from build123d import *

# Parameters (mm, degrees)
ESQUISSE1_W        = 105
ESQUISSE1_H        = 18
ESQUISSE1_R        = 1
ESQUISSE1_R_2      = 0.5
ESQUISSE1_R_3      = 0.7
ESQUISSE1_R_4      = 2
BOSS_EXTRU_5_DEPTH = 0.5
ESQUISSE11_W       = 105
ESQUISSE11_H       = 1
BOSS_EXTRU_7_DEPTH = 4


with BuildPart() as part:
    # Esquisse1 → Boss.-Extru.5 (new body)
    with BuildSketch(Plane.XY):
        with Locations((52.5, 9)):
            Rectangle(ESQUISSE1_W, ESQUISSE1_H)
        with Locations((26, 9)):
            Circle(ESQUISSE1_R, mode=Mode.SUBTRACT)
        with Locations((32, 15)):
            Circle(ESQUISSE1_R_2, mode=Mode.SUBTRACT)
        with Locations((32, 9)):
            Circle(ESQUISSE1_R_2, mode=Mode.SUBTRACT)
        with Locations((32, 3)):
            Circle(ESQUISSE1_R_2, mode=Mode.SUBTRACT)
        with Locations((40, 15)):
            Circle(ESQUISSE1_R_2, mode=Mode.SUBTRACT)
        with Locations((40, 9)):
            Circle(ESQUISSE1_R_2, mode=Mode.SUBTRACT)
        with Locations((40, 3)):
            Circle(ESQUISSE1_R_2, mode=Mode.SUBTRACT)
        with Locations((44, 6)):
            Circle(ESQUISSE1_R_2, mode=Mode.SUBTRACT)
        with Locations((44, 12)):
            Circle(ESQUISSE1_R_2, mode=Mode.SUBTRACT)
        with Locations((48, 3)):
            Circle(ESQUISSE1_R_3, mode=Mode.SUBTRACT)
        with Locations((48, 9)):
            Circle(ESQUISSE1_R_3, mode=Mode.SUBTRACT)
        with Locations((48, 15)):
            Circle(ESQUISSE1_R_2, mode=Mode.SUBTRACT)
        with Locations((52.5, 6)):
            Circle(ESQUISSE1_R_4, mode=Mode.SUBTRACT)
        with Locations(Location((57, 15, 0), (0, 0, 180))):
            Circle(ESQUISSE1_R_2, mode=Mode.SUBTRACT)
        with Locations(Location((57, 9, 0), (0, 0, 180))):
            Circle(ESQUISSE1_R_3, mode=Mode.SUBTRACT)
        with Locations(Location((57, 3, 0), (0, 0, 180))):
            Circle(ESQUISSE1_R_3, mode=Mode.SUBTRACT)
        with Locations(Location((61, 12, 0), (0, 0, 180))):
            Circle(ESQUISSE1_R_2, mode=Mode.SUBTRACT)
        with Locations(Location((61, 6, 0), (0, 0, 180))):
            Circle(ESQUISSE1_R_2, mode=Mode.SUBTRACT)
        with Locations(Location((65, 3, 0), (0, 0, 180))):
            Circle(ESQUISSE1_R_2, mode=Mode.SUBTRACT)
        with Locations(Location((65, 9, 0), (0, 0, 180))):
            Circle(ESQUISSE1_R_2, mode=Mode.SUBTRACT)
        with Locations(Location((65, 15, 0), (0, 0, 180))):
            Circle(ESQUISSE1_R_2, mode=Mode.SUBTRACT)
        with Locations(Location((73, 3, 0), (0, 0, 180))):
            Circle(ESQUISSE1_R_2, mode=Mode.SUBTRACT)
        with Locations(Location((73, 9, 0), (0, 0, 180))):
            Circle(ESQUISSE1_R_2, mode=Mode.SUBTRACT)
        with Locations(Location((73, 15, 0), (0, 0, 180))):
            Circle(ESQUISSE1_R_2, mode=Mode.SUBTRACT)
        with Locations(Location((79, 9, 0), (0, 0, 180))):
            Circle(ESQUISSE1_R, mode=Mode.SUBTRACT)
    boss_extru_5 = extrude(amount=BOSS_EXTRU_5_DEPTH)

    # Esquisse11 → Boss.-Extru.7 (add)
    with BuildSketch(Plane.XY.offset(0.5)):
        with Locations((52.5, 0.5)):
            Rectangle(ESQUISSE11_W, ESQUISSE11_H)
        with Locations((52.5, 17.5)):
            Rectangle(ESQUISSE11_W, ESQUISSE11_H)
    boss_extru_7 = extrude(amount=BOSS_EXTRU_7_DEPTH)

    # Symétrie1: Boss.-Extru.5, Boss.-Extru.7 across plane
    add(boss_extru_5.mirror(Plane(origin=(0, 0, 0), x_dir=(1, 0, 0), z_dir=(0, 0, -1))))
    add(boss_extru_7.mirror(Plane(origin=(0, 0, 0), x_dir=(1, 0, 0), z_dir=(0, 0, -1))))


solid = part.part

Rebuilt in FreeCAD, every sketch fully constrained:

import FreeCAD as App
import Part
import Sketcher

doc = App.newDocument("Part")
body = doc.addObject("PartDesign::Body", "Body")

# Sketch on XY plane
sketch1 = body.newObject("Sketcher::SketchObject", "Sketch")
sketch1.AttachmentSupport = (doc.getObject("XY_Plane"), [""])
sketch1.MapMode = "FlatFace"
sketch1.addGeometry([
    Part.LineSegment(App.Vector(0, 18, 0), App.Vector(0, 0, 0)),  # 0
    Part.LineSegment(App.Vector(0, 0, 0), App.Vector(105, 0, 0)),  # 1
    Part.LineSegment(App.Vector(105, 0, 0), App.Vector(105, 18, 0)),  # 2
    Part.LineSegment(App.Vector(105, 18, 0), App.Vector(0, 18, 0)),  # 3
    Part.Circle(App.Vector(32, 3, 0), App.Vector(0, 0, 1), 0.5),  # 4
    Part.Circle(App.Vector(40, 3, 0), App.Vector(0, 0, 1), 0.5),  # 5
    Part.Circle(App.Vector(48, 3, 0), App.Vector(0, 0, 1), 0.7),  # 6
    Part.Circle(App.Vector(44, 6, 0), App.Vector(0, 0, 1), 0.5),  # 7
    Part.Circle(App.Vector(57, 3, 0), App.Vector(0, 0, 1), 0.7),  # 8
    Part.Circle(App.Vector(65, 3, 0), App.Vector(0, 0, 1), 0.5),  # 9
    Part.Circle(App.Vector(73, 3, 0), App.Vector(0, 0, 1), 0.5),  # 10
    Part.Circle(App.Vector(52.5, 6, 0), App.Vector(0, 0, 1), 2),  # 11
    Part.Circle(App.Vector(61, 6, 0), App.Vector(0, 0, 1), 0.5),  # 12
    Part.Circle(App.Vector(26, 9, 0), App.Vector(0, 0, 1), 1),  # 13
    Part.Circle(App.Vector(32, 9, 0), App.Vector(0, 0, 1), 0.5),  # 14
    Part.Circle(App.Vector(40, 9, 0), App.Vector(0, 0, 1), 0.5),  # 15
    Part.Circle(App.Vector(48, 9, 0), App.Vector(0, 0, 1), 0.7),  # 16
    Part.Circle(App.Vector(44, 12, 0), App.Vector(0, 0, 1), 0.5),  # 17
    Part.Circle(App.Vector(32, 15, 0), App.Vector(0, 0, 1), 0.5),  # 18
    Part.Circle(App.Vector(40, 15, 0), App.Vector(0, 0, 1), 0.5),  # 19
    Part.Circle(App.Vector(48, 15, 0), App.Vector(0, 0, 1), 0.5),  # 20
    Part.Circle(App.Vector(57, 9, 0), App.Vector(0, 0, 1), 0.7),  # 21
    Part.Circle(App.Vector(65, 9, 0), App.Vector(0, 0, 1), 0.5),  # 22
    Part.Circle(App.Vector(61, 12, 0), App.Vector(0, 0, 1), 0.5),  # 23
    Part.Circle(App.Vector(73, 9, 0), App.Vector(0, 0, 1), 0.5),  # 24
    Part.Circle(App.Vector(79, 9, 0), App.Vector(0, 0, 1), 1),  # 25
    Part.Circle(App.Vector(57, 15, 0), App.Vector(0, 0, 1), 0.5),  # 26
    Part.Circle(App.Vector(65, 15, 0), App.Vector(0, 0, 1), 0.5),  # 27
    Part.Circle(App.Vector(73, 15, 0), App.Vector(0, 0, 1), 0.5),  # 28
], False)
sketch1.addConstraint([
    Sketcher.Constraint("Coincident", 0, 2, 1, 1),
    Sketcher.Constraint("Coincident", 1, 2, 2, 1),
    Sketcher.Constraint("Coincident", 2, 2, 3, 1),
    Sketcher.Constraint("Coincident", 3, 2, 0, 1),
    Sketcher.Constraint("Vertical", 0),
    Sketcher.Constraint("Horizontal", 1),
    Sketcher.Constraint("Vertical", 2),
    Sketcher.Constraint("Horizontal", 3),
    Sketcher.Constraint("Coincident", 0, 2, -1, 1),
    Sketcher.Constraint("Equal", 4, 5),
    Sketcher.Constraint("Equal", 5, 7),
    Sketcher.Constraint("Equal", 6, 8),
    Sketcher.Constraint("Equal", 7, 9),
    Sketcher.Constraint("Equal", 9, 10),
    Sketcher.Constraint("Equal", 10, 12),
    Sketcher.Constraint("Equal", 12, 14),
    Sketcher.Constraint("Equal", 14, 15),
    Sketcher.Constraint("Equal", 8, 16),
    Sketcher.Constraint("Equal", 15, 17),
    Sketcher.Constraint("Equal", 17, 18),
    Sketcher.Constraint("Equal", 18, 19),
    Sketcher.Constraint("Equal", 19, 20),
    Sketcher.Constraint("Equal", 16, 21),
    Sketcher.Constraint("Equal", 20, 22),
    Sketcher.Constraint("Equal", 22, 23),
    Sketcher.Constraint("Equal", 23, 24),
    Sketcher.Constraint("Equal", 13, 25),
    Sketcher.Constraint("Equal", 24, 26),
    Sketcher.Constraint("Equal", 26, 27),
    Sketcher.Constraint("Equal", 27, 28),
    Sketcher.Constraint("Horizontal", 4, 3, 5, 3),
    Sketcher.Constraint("Horizontal", 5, 3, 6, 3),
    Sketcher.Constraint("Horizontal", 6, 3, 8, 3),
    Sketcher.Constraint("Horizontal", 8, 3, 9, 3),
    Sketcher.Constraint("Horizontal", 9, 3, 10, 3),
    Sketcher.Constraint("Horizontal", 7, 3, 11, 3),
    Sketcher.Constraint("Horizontal", 11, 3, 12, 3),
    Sketcher.Constraint("Horizontal", 13, 3, 14, 3),
    Sketcher.Constraint("Horizontal", 14, 3, 15, 3),
    Sketcher.Constraint("Horizontal", 15, 3, 16, 3),
    Sketcher.Constraint("Horizontal", 18, 3, 19, 3),
    Sketcher.Constraint("Horizontal", 19, 3, 20, 3),
    Sketcher.Constraint("Horizontal", 16, 3, 21, 3),
    Sketcher.Constraint("Horizontal", 21, 3, 22, 3),
    Sketcher.Constraint("Horizontal", 17, 3, 23, 3),
    Sketcher.Constraint("Horizontal", 22, 3, 24, 3),
    Sketcher.Constraint("Horizontal", 24, 3, 25, 3),
    Sketcher.Constraint("Horizontal", 20, 3, 26, 3),
    Sketcher.Constraint("Horizontal", 26, 3, 27, 3),
    Sketcher.Constraint("Horizontal", 27, 3, 28, 3),
    Sketcher.Constraint("Vertical", 4, 3, 14, 3),
    Sketcher.Constraint("Vertical", 5, 3, 15, 3),
    Sketcher.Constraint("Vertical", 6, 3, 16, 3),
    Sketcher.Constraint("Vertical", 7, 3, 17, 3),
    Sketcher.Constraint("Vertical", 14, 3, 18, 3),
    Sketcher.Constraint("Vertical", 15, 3, 19, 3),
    Sketcher.Constraint("Vertical", 16, 3, 20, 3),
    Sketcher.Constraint("Vertical", 8, 3, 21, 3),
    Sketcher.Constraint("Vertical", 9, 3, 22, 3),
    Sketcher.Constraint("Vertical", 12, 3, 23, 3),
    Sketcher.Constraint("Vertical", 10, 3, 24, 3),
    Sketcher.Constraint("Vertical", 21, 3, 26, 3),
    Sketcher.Constraint("Vertical", 22, 3, 27, 3),
    Sketcher.Constraint("Vertical", 24, 3, 28, 3),
    Sketcher.Constraint("Diameter", 4, 1.0),
    Sketcher.Constraint("Diameter", 11, 4.0),
    Sketcher.Constraint("Diameter", 13, 2.0),
    Sketcher.Constraint("Diameter", 6, 1.4),
    Sketcher.Constraint("DistanceX", 1, 1, 1, 2, 105.0),
    Sketcher.Constraint("DistanceY", 0, 2, 0, 1, 18.0),
    Sketcher.Constraint("DistanceX", -1, 1, 4, 3, 32.0),
    Sketcher.Constraint("DistanceY", -1, 1, 4, 3, 3.0),
    Sketcher.Constraint("DistanceX", -1, 1, 5, 3, 40.0),
    Sketcher.Constraint("DistanceX", -1, 1, 6, 3, 48.0),
    Sketcher.Constraint("DistanceX", -1, 1, 7, 3, 44.0),
    Sketcher.Constraint("DistanceY", -1, 1, 7, 3, 6.0),
    Sketcher.Constraint("DistanceX", -1, 1, 8, 3, 57.0),
    Sketcher.Constraint("DistanceX", -1, 1, 9, 3, 65.0),
    Sketcher.Constraint("DistanceX", -1, 1, 10, 3, 73.0),
    Sketcher.Constraint("DistanceX", -1, 1, 12, 3, 61.0),
    Sketcher.Constraint("DistanceX", -1, 1, 13, 3, 26.0),
    Sketcher.Constraint("DistanceY", -1, 1, 13, 3, 9.0),
    Sketcher.Constraint("DistanceY", -1, 1, 17, 3, 12.0),
    Sketcher.Constraint("DistanceY", -1, 1, 18, 3, 15.0),
    Sketcher.Constraint("DistanceX", -1, 1, 25, 3, 79.0),
    Sketcher.Constraint("DistanceX", -1, 1, 11, 3, 52.5),
])
pad1 = body.newObject("PartDesign::Pad", "Pad")
pad1.Profile = sketch1
pad1.Length = 0.5

# Sketch on XY plane
sketch2 = body.newObject("Sketcher::SketchObject", "Sketch001")
sketch2.AttachmentSupport = (doc.getObject("XY_Plane"), [""])
sketch2.MapMode = "FlatFace"
sketch2.AttachmentOffset = App.Placement(App.Vector(0, 0, 0.5), App.Rotation())
sketch2.addGeometry([
    Part.LineSegment(App.Vector(0, 1, 0), App.Vector(0, 0, 0)),  # 0
    Part.LineSegment(App.Vector(0, 0, 0), App.Vector(105, 0, 0)),  # 1
    Part.LineSegment(App.Vector(105, 0, 0), App.Vector(105, 1, 0)),  # 2
    Part.LineSegment(App.Vector(105, 1, 0), App.Vector(0, 1, 0)),  # 3
    Part.LineSegment(App.Vector(0, 18, 0), App.Vector(0, 17, 0)),  # 4
    Part.LineSegment(App.Vector(0, 17, 0), App.Vector(105, 17, 0)),  # 5
    Part.LineSegment(App.Vector(105, 17, 0), App.Vector(105, 18, 0)),  # 6
    Part.LineSegment(App.Vector(105, 18, 0), App.Vector(0, 18, 0)),  # 7
], False)
sketch2.addConstraint([
    Sketcher.Constraint("Coincident", 0, 2, 1, 1),
    Sketcher.Constraint("Coincident", 1, 2, 2, 1),
    Sketcher.Constraint("Coincident", 2, 2, 3, 1),
    Sketcher.Constraint("Coincident", 3, 2, 0, 1),
    Sketcher.Constraint("Coincident", 4, 2, 5, 1),
    Sketcher.Constraint("Coincident", 5, 2, 6, 1),
    Sketcher.Constraint("Coincident", 6, 2, 7, 1),
    Sketcher.Constraint("Coincident", 7, 2, 4, 1),
    Sketcher.Constraint("Vertical", 0),
    Sketcher.Constraint("Horizontal", 1),
    Sketcher.Constraint("Vertical", 2),
    Sketcher.Constraint("Horizontal", 3),
    Sketcher.Constraint("Vertical", 4),
    Sketcher.Constraint("Horizontal", 5),
    Sketcher.Constraint("Vertical", 6),
    Sketcher.Constraint("Horizontal", 7),
    Sketcher.Constraint("Coincident", 0, 2, -1, 1),
    Sketcher.Constraint("PointOnObject", 4, 2, -2),
    Sketcher.Constraint("Vertical", 2, 2, 5, 2),
    Sketcher.Constraint("Equal", 2, 4),
    Sketcher.Constraint("DistanceX", 1, 1, 1, 2, 105.0),
    Sketcher.Constraint("DistanceY", 0, 2, 0, 1, 1.0),
    Sketcher.Constraint("DistanceY", -1, 1, 4, 2, 17.0),
])
pad2 = body.newObject("PartDesign::Pad", "Pad001")
pad2.Profile = sketch2
pad2.Length = 4
doc.recompute()

mirrored = body.newObject("PartDesign::Mirrored", "Mirrored")
mirrored.Originals = [pad1, pad2]
mirrored.MirrorPlane = (doc.getObject("XY_Plane"), [""])
body.Tip = mirrored

doc.recompute()
